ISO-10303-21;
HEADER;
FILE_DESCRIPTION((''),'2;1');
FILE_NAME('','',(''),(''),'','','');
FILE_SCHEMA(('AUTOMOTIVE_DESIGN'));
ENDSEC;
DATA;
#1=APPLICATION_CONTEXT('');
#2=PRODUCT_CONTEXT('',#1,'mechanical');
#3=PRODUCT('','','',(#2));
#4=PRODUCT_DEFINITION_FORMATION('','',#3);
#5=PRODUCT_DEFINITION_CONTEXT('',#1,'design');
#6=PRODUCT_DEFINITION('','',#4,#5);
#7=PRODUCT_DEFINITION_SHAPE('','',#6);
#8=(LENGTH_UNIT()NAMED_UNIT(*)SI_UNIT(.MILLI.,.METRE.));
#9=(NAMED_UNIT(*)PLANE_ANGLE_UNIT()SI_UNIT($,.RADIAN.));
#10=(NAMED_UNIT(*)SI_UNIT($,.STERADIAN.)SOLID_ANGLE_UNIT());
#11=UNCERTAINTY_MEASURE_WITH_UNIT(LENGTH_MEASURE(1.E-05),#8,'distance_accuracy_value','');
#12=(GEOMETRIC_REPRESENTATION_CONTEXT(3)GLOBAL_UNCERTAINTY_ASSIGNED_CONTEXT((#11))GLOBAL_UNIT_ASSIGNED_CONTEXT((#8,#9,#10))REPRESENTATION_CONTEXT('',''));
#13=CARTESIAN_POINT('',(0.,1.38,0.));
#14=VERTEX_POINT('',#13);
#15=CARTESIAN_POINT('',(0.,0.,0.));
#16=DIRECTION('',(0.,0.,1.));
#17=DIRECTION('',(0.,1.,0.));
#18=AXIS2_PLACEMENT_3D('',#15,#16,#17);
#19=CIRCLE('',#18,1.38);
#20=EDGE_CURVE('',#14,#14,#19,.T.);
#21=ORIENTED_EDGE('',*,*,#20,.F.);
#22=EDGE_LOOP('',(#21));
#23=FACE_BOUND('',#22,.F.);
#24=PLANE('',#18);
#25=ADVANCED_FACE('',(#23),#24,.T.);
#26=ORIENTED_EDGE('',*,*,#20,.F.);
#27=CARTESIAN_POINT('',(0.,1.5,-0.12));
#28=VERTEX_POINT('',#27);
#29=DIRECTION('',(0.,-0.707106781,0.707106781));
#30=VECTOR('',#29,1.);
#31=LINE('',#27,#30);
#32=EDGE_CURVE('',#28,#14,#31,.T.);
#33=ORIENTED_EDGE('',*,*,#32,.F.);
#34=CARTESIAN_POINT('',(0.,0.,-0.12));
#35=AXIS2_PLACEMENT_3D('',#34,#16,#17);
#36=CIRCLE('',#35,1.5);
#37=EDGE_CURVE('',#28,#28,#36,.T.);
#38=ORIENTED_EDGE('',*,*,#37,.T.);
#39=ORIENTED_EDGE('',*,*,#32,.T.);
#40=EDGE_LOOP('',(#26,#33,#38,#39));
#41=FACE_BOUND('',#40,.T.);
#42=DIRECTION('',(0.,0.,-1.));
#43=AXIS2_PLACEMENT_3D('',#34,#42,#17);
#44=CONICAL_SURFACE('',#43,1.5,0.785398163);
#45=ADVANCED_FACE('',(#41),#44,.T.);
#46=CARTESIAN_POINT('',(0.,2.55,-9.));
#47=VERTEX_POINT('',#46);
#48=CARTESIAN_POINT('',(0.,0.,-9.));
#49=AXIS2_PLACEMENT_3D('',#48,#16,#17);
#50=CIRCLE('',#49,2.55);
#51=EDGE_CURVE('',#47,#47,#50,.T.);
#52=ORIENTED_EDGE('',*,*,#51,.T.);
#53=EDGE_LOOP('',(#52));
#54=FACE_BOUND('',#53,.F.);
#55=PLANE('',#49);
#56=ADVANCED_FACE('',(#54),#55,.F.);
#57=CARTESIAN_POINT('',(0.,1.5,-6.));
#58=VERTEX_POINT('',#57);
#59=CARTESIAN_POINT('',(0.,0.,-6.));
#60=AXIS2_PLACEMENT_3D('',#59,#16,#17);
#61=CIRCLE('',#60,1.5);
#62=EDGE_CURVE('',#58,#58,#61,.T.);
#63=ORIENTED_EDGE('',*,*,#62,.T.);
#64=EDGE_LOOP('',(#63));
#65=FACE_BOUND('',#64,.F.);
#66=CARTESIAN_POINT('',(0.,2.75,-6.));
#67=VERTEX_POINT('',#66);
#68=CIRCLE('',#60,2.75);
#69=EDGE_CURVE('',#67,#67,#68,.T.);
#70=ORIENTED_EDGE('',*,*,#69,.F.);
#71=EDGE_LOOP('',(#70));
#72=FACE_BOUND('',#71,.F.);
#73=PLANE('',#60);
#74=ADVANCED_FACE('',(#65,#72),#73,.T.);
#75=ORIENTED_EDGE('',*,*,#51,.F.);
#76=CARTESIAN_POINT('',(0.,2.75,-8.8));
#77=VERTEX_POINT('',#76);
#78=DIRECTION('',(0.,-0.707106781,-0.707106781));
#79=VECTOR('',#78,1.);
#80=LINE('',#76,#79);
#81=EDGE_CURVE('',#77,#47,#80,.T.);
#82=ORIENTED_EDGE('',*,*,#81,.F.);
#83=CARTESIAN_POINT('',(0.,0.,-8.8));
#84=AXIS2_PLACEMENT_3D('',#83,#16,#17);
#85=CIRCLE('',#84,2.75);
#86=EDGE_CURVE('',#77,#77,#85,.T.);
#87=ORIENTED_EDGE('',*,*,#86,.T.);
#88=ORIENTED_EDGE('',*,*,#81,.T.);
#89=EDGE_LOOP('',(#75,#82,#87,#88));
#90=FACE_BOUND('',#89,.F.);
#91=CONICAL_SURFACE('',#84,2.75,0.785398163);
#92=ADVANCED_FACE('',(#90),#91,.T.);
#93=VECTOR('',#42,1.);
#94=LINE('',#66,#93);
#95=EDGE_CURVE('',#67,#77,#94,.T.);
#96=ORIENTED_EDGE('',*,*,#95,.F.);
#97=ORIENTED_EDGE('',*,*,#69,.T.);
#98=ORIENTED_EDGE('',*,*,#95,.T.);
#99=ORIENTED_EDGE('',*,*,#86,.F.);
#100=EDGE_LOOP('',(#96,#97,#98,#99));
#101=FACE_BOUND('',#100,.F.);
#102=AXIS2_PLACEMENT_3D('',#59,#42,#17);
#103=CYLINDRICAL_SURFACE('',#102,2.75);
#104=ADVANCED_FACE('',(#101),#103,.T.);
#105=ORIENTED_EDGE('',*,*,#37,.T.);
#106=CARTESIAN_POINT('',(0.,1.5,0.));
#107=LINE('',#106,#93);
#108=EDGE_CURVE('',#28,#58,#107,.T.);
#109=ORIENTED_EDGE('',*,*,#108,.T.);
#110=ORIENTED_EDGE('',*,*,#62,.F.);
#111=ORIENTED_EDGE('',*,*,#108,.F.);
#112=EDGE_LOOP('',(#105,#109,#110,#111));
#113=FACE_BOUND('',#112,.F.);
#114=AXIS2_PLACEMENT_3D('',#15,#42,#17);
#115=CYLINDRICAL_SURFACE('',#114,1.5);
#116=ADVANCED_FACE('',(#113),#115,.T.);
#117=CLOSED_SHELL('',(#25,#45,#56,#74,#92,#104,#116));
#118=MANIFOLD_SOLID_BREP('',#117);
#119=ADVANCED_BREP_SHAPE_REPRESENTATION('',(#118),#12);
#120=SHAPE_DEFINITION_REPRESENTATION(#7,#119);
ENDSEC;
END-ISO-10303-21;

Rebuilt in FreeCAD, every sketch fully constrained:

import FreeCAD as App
import Part
import Sketcher
Q = App.Units.Quantity

doc = App.newDocument("Part")
body = doc.addObject("PartDesign::Body", "Body")

sketch1 = doc.addObject("Sketcher::SketchObject", "Sketch")
body.addObject(sketch1)
sketch1.AttachmentSupport = (doc.YZ_Plane, [""])
sketch1.MapMode = "FlatFace"
sketch1.addGeometry([
    Part.LineSegment(App.Vector(1.38, 0, 0), App.Vector(0, 0, 0)),
    Part.LineSegment(App.Vector(0, 0, 0), App.Vector(0, -9, 0)),
    Part.LineSegment(App.Vector(0, -9, 0), App.Vector(2.55, -9, 0)),
    Part.LineSegment(App.Vector(2.55, -9, 0), App.Vector(2.75, -8.8, 0)),
    Part.LineSegment(App.Vector(2.75, -8.8, 0), App.Vector(2.75, -6, 0)),
    Part.LineSegment(App.Vector(2.75, -6, 0), App.Vector(1.5, -6, 0)),
    Part.LineSegment(App.Vector(1.5, -6, 0), App.Vector(1.5, -0.12, 0)),
    Part.LineSegment(App.Vector(1.5, -0.12, 0), App.Vector(1.38, 0, 0)),
], False)
sketch1.addConstraint([
    Sketcher.Constraint("Coincident", 0, 2, 1, 1),
    Sketcher.Constraint("Coincident", 1, 2, 2, 1),
    Sketcher.Constraint("Coincident", 2, 2, 3, 1),
    Sketcher.Constraint("Coincident", 3, 2, 4, 1),
    Sketcher.Constraint("Coincident", 4, 2, 5, 1),
    Sketcher.Constraint("Coincident", 5, 2, 6, 1),
    Sketcher.Constraint("Coincident", 6, 2, 7, 1),
    Sketcher.Constraint("Coincident", 7, 2, 0, 1),
    Sketcher.Constraint("Horizontal", 0),
    Sketcher.Constraint("Vertical", 1),
    Sketcher.Constraint("Horizontal", 2),
    Sketcher.Constraint("Vertical", 4),
    Sketcher.Constraint("Horizontal", 5),
    Sketcher.Constraint("Vertical", 6),
    Sketcher.Constraint("Coincident", 0, 2, -1, 1),
    Sketcher.Constraint("Perpendicular", 3, 7),
    Sketcher.Constraint("Angle", 3, Q("45 deg")),
    Sketcher.Constraint("DistanceY", 4, 2, -1, 1, Q("6 mm")),
    Sketcher.Constraint("DistanceY", 2, 2, 4, 2, Q("3 mm")),
    Sketcher.Constraint("DistanceX", -1, 1, 5, 2, Q("1.5 mm")),
    Sketcher.Constraint("DistanceX", 2, 2, 3, 2, Q("0.2 mm")),
    Sketcher.Constraint("DistanceX", -1, 1, 3, 2, Q("2.75 mm")),
    Sketcher.Constraint("DistanceY", 6, 2, -1, 1, Q("0.12 mm")),
])
revolution = doc.addObject("PartDesign::Revolution", "Revolution")
body.addObject(revolution)
revolution.Profile = sketch1
revolution.ReferenceAxis = (sketch1, ["V_Axis"])
revolution.Angle = 360

doc.recompute()
